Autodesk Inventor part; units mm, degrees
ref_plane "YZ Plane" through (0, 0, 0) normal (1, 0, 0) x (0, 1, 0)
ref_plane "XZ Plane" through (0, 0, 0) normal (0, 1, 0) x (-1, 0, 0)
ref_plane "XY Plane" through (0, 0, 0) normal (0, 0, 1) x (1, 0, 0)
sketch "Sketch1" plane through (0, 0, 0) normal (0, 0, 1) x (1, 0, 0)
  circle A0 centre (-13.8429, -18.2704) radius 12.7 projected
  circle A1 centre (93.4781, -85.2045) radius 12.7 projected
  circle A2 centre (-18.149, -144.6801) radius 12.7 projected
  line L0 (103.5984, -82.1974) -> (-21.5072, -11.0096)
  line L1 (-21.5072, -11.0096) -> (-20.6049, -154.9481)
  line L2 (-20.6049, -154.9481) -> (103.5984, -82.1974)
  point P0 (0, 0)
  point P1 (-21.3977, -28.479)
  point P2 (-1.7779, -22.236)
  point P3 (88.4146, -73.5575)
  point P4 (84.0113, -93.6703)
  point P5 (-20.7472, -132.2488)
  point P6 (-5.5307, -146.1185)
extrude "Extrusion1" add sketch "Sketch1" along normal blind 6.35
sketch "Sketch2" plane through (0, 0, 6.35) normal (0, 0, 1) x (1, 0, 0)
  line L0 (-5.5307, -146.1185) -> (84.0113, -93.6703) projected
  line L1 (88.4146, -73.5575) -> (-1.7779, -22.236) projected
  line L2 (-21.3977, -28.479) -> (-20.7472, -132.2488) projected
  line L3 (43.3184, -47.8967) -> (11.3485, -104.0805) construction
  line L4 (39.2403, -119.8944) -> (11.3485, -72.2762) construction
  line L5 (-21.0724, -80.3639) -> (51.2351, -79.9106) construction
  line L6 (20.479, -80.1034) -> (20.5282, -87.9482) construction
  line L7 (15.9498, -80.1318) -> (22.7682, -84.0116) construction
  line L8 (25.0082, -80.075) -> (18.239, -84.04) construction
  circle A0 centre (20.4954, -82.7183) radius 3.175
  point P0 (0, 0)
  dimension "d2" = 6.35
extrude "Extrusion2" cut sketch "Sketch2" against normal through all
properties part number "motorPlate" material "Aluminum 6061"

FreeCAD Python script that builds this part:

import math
import FreeCAD as App
import Part
import Sketcher

V = App.Vector
Q = App.Units.Quantity

doc = App.newDocument("Part")
body = doc.addObject("PartDesign::Body", "Body")

# Sketch on XY plane
sketch1 = body.newObject("Sketcher::SketchObject", "Sketch")
sketch1.AttachmentSupport = (doc.getObject("XY_Plane"), [""])
sketch1.MapMode = "FlatFace"
sketch1.addGeometry([
    Part.ArcOfCircle(Part.Circle(V(-14, -18, 0), V(0, 0, 1), 13), math.radians(-18), math.radians(233)),  # 0
    Part.LineSegment(V(-21, -28, 0), V(-21, -132, 0)),  # 1
    Part.ArcOfCircle(Part.Circle(V(-18, -145, 0), V(0, 0, 1), 13), math.radians(102), math.radians(353)),  # 2
    Part.LineSegment(V(-6, -146, 0), V(84, -94, 0)),  # 3
    Part.ArcOfCircle(Part.Circle(V(93, -85, 0), V(0, 0, 1), 13), math.radians(-138), math.radians(113)),  # 4
    Part.LineSegment(V(88, -74, 0), V(-2, -22, 0)),  # 5
], False)
sketch1.addConstraint([
    Sketcher.Constraint("Coincident", 0, 2, 1, 1),
    Sketcher.Constraint("Coincident", 1, 2, 2, 1),
    Sketcher.Constraint("Coincident", 2, 2, 3, 1),
    Sketcher.Constraint("Coincident", 3, 2, 4, 1),
    Sketcher.Constraint("Coincident", 4, 2, 5, 1),
    Sketcher.Constraint("Coincident", 5, 2, 0, 1),
    Sketcher.Constraint("Equal", 0, 2),
    Sketcher.Constraint("Equal", 2, 4),
    Sketcher.Constraint("Equal", 1, 3),
    Sketcher.Constraint("Equal", 3, 5),
    Sketcher.Constraint("Radius", 0, Q("0.5 in")),
    Sketcher.Constraint("DistanceX", 5, 2, -1, 1, Q("0.07 in")),
    Sketcher.Constraint("Angle", 1, Q("-89.6408 deg")),
    Sketcher.Constraint("Angle", 3, Q("30.3592 deg")),
    Sketcher.Constraint("Angle", 5, Q("150.3592 deg")),
    Sketcher.Constraint("DistanceX", 0, 3, -1, 1, Q("0.545 in")),
    Sketcher.Constraint("Distance", 1, Q("4.0855 in")),
    Sketcher.Constraint("DistanceY", 0, 3, -1, 1, Q("0.7193 in")),
    Sketcher.Constraint("DistanceY", 4, 3, -1, 1, Q("3.3545 in")),
    Sketcher.Constraint("DistanceY", 2, 2, -1, 1, Q("5.7527 in")),
    Sketcher.Constraint("DistanceX", 0, 2, 2, 3, Q("0.1279 in")),
])
pad1 = body.newObject("PartDesign::Pad", "Pad")
pad1.Profile = sketch1
pad1.Length = Q("0.25 in")

# Sketch on XY plane
sketch2 = body.newObject("Sketcher::SketchObject", "Sketch001")
sketch2.AttachmentSupport = (doc.getObject("XY_Plane"), [""])
sketch2.MapMode = "FlatFace"
sketch2.AttachmentOffset = App.Placement(V(0, 0, 0.25 * 25.4), App.Rotation())
sketch2.addGeometry(Part.Circle(V(20.5, -82.7, 0), V(0, 0, 1), 3.2), False)
sketch2.addConstraint([
    Sketcher.Constraint("Diameter", 0, Q("0.25 in")),
    Sketcher.Constraint("DistanceX", -1, 1, 0, 3, Q("0.8069 in")),
    Sketcher.Constraint("DistanceY", 0, 3, -1, 1, Q("82.7183 mm")),
])
pocket1 = body.newObject("PartDesign::Pocket", "Pocket")
pocket1.Profile = sketch2
pocket1.Type = "ThroughAll"

doc.recompute()
